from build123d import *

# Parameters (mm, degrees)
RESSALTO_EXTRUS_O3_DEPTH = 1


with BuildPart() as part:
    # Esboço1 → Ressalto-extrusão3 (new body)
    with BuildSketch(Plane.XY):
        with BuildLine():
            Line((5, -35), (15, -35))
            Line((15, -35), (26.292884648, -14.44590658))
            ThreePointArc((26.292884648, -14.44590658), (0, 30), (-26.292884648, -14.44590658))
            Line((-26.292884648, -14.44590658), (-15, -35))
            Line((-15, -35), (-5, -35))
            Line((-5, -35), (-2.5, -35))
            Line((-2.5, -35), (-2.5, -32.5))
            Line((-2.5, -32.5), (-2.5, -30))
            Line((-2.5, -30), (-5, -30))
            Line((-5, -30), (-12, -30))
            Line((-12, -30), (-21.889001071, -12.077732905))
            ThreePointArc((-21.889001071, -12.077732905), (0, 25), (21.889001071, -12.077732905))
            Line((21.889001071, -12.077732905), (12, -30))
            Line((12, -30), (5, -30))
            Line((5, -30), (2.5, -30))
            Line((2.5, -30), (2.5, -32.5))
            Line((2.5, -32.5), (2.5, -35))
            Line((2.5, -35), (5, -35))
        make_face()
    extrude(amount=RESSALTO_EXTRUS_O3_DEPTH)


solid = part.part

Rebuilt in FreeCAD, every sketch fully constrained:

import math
import FreeCAD as App
import Part
import Sketcher

V = App.Vector
Q = App.Units.Quantity

doc = App.newDocument("Part")
body = doc.addObject("PartDesign::Body", "Body")

sketch1 = body.newObject("Sketcher::SketchObject", "Sketch")
sketch1.AttachmentSupport = (doc.getObject("XY_Plane"), [""])
sketch1.MapMode = "FlatFace"
sketch1.addGeometry([
    Part.LineSegment(V(15, -35, 0), V(26, -14, 0)),
    Part.ArcOfCircle(Part.Circle(V(0, 0, 0), V(0, 0, 1), 30), math.radians(-29), math.radians(209)),
    Part.LineSegment(V(-26, -14, 0), V(-15, -35, 0)),
    Part.LineSegment(V(-15, -35, 0), V(-2, -35, 0)),
    Part.LineSegment(V(-2, -35, 0), V(-2, -30, 0)),
    Part.LineSegment(V(-2, -30, 0), V(-12, -30, 0)),
    Part.LineSegment(V(-12, -30, 0), V(-22, -12, 0)),
    Part.ArcOfCircle(Part.Circle(V(0, 0, 0), V(0, 0, 1), 25), math.radians(-29), math.radians(209)),
    Part.LineSegment(V(22, -12, 0), V(12, -30, 0)),
    Part.LineSegment(V(12, -30, 0), V(2, -30, 0)),
    Part.LineSegment(V(2, -30, 0), V(2, -35, 0)),
    Part.LineSegment(V(2, -35, 0), V(15, -35, 0)),
], False)
sketch1.addConstraint([
    Sketcher.Constraint("Tangent", 0, 2, 1, 1),
    Sketcher.Constraint("Tangent", 1, 2, 2, 1),
    Sketcher.Constraint("Coincident", 2, 2, 3, 1),
    Sketcher.Constraint("Coincident", 3, 2, 4, 1),
    Sketcher.Constraint("Coincident", 4, 2, 5, 1),
    Sketcher.Constraint("Coincident", 5, 2, 6, 1),
    Sketcher.Constraint("Tangent", 6, 2, 7, 2),
    Sketcher.Constraint("Tangent", 7, 1, 8, 1),
    Sketcher.Constraint("Coincident", 8, 2, 9, 1),
    Sketcher.Constraint("Coincident", 9, 2, 10, 1),
    Sketcher.Constraint("Coincident", 10, 2, 11, 1),
    Sketcher.Constraint("Coincident", 11, 2, 0, 1),
    Sketcher.Constraint("Horizontal", 3),
    Sketcher.Constraint("Vertical", 4),
    Sketcher.Constraint("Horizontal", 5),
    Sketcher.Constraint("Horizontal", 9),
    Sketcher.Constraint("Vertical", 10),
    Sketcher.Constraint("Horizontal", 11),
    Sketcher.Constraint("Coincident", 1, 3, -1, 1),
    Sketcher.Constraint("Coincident", 7, 3, -1, 1),
    Sketcher.Constraint("Symmetric", 5, 2, 8, 2, -2),
    Sketcher.Constraint("Symmetric", 3, 2, 10, 2, -2),
    Sketcher.Constraint("Horizontal", 0, 2, 1, 2),
    Sketcher.Constraint("Radius", 1, Q("30 mm")),
    Sketcher.Constraint("Radius", 7, Q("25 mm")),
    Sketcher.Constraint("DistanceY", 4, 1, 4, 2, Q("5 mm")),
    Sketcher.Constraint("DistanceX", 3, 1, 3, 2, Q("12.5 mm")),
    Sketcher.Constraint("DistanceX", 5, 2, 5, 1, Q("9.5 mm")),
    Sketcher.Constraint("DistanceX", 2, 2, -1, 1, Q("15 mm")),
    Sketcher.Constraint("DistanceY", 2, 2, -1, 1, Q("35 mm")),
])
pad1 = body.newObject("PartDesign::Pad", "Pad")
pad1.Profile = sketch1
pad1.Length = 1

doc.recompute()
